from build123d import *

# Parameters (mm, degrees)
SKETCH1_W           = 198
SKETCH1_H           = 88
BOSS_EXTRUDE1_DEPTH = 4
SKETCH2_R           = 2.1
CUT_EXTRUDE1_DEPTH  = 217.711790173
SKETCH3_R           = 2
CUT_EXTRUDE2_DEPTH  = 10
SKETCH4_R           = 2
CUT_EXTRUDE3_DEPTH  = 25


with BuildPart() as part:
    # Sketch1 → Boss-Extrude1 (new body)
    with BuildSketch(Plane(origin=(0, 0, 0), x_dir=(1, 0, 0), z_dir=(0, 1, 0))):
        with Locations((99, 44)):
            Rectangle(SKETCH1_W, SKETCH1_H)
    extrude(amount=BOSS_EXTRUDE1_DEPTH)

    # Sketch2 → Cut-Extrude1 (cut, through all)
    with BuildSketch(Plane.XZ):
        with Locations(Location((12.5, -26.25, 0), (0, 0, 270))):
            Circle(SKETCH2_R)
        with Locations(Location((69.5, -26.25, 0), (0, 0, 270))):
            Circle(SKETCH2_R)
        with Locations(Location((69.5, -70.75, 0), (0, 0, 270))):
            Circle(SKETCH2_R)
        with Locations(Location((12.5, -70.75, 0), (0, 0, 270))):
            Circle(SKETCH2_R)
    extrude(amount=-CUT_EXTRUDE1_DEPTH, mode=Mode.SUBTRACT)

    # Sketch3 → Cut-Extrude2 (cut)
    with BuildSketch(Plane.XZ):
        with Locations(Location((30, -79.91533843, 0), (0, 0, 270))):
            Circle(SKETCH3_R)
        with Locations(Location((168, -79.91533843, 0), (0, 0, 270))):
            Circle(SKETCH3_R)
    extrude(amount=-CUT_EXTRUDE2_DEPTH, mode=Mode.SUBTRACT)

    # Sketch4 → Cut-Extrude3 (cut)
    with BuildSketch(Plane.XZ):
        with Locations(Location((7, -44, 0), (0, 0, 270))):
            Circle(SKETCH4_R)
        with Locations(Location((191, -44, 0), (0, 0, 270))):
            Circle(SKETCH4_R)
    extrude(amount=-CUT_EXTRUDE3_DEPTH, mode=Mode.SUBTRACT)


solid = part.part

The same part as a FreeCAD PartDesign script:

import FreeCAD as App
import Part
import Sketcher

V = App.Vector
Q = App.Units.Quantity


def add_polygon(sketch, points):
    """Adds a closed chain of lines whose ends are joined by coincident constraints."""
    first, n = sketch.GeometryCount, len(points)
    for a, b in zip(points, points[1:] + points[:1]):
        sketch.addGeometry(Part.LineSegment(App.Vector(*a, 0), App.Vector(*b, 0)), False)
    for i in range(n):
        sketch.addConstraint(Sketcher.Constraint("Coincident", first + i, 2, first + (i + 1) % n, 1))

doc = App.newDocument("Part")
body = doc.addObject("PartDesign::Body", "Body")

# Sketch on XZ plane
sketch1 = doc.addObject("Sketcher::SketchObject", "Sketch")
body.addObject(sketch1)
sketch1.AttachmentSupport = (doc.XZ_Plane, [""])
sketch1.MapMode = "FlatFace"
add_polygon(sketch1, [(0, -88), (0, 0), (198, 0), (198, -88)])  # lines 0-3
sketch1.addConstraint([
    Sketcher.Constraint("Vertical", 0),
    Sketcher.Constraint("Horizontal", 1),
    Sketcher.Constraint("Vertical", 2),
    Sketcher.Constraint("Horizontal", 3),
    Sketcher.Constraint("Coincident", 0, 2, -1, 1),
    Sketcher.Constraint("DistanceX", 1, 1, 1, 2, Q("198 mm")),
    Sketcher.Constraint("DistanceY", 0, 1, 0, 2, Q("88 mm")),
])
pad1 = doc.addObject("PartDesign::Pad", "Pad")
body.addObject(pad1)
pad1.Profile = sketch1
pad1.Length = 4
pad1.Reversed = True

# Sketch on XZ plane
sketch2 = doc.addObject("Sketcher::SketchObject", "Sketch001")
body.addObject(sketch2)
sketch2.AttachmentSupport = (doc.XZ_Plane, [""])
sketch2.MapMode = "FlatFace"
sketch2.addGeometry([
    Part.Circle(V(12.5, -26.2, 0), V(0, 0, 1), 2.1),
    Part.Circle(V(69.5, -26.2, 0), V(0, 0, 1), 2.1),
    Part.Circle(V(69.5, -70.8, 0), V(0, 0, 1), 2.1),
    Part.Circle(V(12.5, -70.8, 0), V(0, 0, 1), 2.1),
], False)
sketch2.addConstraint([
    Sketcher.Constraint("Equal", 0, 1),
    Sketcher.Constraint("Equal", 1, 2),
    Sketcher.Constraint("Equal", 2, 3),
    Sketcher.Constraint("Horizontal", 0, 3, 1, 3),
    Sketcher.Constraint("Horizontal", 2, 3, 3, 3),
    Sketcher.Constraint("Vertical", 1, 3, 2, 3),
    Sketcher.Constraint("Vertical", 0, 3, 3, 3),
    Sketcher.Constraint("Diameter", 0, Q("4.2 mm")),
    Sketcher.Constraint("DistanceX", 0, 3, 1, 3, Q("57 mm")),
    Sketcher.Constraint("DistanceX", -1, 1, 0, 3, Q("12.5 mm")),
    Sketcher.Constraint("DistanceY", 2, 3, 1, 3, Q("44.5 mm")),
    Sketcher.Constraint("DistanceY", 0, 3, -1, 1, Q("26.25 mm")),
])
pocket1 = doc.addObject("PartDesign::Pocket", "Pocket")
body.addObject(pocket1)
pocket1.Profile = sketch2
pocket1.Type = "ThroughAll"

# Sketch on XZ plane
sketch3 = doc.addObject("Sketcher::SketchObject", "Sketch002")
body.addObject(sketch3)
sketch3.AttachmentSupport = (doc.XZ_Plane, [""])
sketch3.MapMode = "FlatFace"
sketch3.addGeometry([
    Part.Circle(V(30, -79.9, 0), V(0, 0, 1), 2),
    Part.Circle(V(168, -79.9, 0), V(0, 0, 1), 2),
], False)
sketch3.addConstraint([
    Sketcher.Constraint("Equal", 0, 1),
    Sketcher.Constraint("Horizontal", 0, 3, 1, 3),
    Sketcher.Constraint("Diameter", 0, Q("4 mm")),
    Sketcher.Constraint("DistanceX", -1, 1, 0, 3, Q("30 mm")),
    Sketcher.Constraint("DistanceX", -1, 1, 1, 3, Q("168 mm")),
    Sketcher.Constraint("DistanceY", 0, 3, -1, 1, Q("79.915338 mm")),
])
pocket2 = doc.addObject("PartDesign::Pocket", "Pocket001")
body.addObject(pocket2)
pocket2.Profile = sketch3
pocket2.Length = 10

# Sketch on XZ plane
sketch4 = doc.addObject("Sketcher::SketchObject", "Sketch003")
body.addObject(sketch4)
sketch4.AttachmentSupport = (doc.XZ_Plane, [""])
sketch4.MapMode = "FlatFace"
sketch4.addGeometry([
    Part.Circle(V(7, -44, 0), V(0, 0, 1), 2),
    Part.Circle(V(191, -44, 0), V(0, 0, 1), 2),
], False)
sketch4.addConstraint([
    Sketcher.Constraint("Equal", 0, 1),
    Sketcher.Constraint("Horizontal", 0, 3, 1, 3),
    Sketcher.Constraint("Diameter", 0, Q("4 mm")),
    Sketcher.Constraint("DistanceX", -1, 1, 0, 3, Q("7 mm")),
    Sketcher.Constraint("DistanceY", 0, 3, -1, 1, Q("44 mm")),
    Sketcher.Constraint("DistanceX", -1, 1, 1, 3, Q("191 mm")),
])
pocket3 = doc.addObject("PartDesign::Pocket", "Pocket002")
body.addObject(pocket3)
pocket3.Profile = sketch4
pocket3.Length = 25

doc.recompute()
